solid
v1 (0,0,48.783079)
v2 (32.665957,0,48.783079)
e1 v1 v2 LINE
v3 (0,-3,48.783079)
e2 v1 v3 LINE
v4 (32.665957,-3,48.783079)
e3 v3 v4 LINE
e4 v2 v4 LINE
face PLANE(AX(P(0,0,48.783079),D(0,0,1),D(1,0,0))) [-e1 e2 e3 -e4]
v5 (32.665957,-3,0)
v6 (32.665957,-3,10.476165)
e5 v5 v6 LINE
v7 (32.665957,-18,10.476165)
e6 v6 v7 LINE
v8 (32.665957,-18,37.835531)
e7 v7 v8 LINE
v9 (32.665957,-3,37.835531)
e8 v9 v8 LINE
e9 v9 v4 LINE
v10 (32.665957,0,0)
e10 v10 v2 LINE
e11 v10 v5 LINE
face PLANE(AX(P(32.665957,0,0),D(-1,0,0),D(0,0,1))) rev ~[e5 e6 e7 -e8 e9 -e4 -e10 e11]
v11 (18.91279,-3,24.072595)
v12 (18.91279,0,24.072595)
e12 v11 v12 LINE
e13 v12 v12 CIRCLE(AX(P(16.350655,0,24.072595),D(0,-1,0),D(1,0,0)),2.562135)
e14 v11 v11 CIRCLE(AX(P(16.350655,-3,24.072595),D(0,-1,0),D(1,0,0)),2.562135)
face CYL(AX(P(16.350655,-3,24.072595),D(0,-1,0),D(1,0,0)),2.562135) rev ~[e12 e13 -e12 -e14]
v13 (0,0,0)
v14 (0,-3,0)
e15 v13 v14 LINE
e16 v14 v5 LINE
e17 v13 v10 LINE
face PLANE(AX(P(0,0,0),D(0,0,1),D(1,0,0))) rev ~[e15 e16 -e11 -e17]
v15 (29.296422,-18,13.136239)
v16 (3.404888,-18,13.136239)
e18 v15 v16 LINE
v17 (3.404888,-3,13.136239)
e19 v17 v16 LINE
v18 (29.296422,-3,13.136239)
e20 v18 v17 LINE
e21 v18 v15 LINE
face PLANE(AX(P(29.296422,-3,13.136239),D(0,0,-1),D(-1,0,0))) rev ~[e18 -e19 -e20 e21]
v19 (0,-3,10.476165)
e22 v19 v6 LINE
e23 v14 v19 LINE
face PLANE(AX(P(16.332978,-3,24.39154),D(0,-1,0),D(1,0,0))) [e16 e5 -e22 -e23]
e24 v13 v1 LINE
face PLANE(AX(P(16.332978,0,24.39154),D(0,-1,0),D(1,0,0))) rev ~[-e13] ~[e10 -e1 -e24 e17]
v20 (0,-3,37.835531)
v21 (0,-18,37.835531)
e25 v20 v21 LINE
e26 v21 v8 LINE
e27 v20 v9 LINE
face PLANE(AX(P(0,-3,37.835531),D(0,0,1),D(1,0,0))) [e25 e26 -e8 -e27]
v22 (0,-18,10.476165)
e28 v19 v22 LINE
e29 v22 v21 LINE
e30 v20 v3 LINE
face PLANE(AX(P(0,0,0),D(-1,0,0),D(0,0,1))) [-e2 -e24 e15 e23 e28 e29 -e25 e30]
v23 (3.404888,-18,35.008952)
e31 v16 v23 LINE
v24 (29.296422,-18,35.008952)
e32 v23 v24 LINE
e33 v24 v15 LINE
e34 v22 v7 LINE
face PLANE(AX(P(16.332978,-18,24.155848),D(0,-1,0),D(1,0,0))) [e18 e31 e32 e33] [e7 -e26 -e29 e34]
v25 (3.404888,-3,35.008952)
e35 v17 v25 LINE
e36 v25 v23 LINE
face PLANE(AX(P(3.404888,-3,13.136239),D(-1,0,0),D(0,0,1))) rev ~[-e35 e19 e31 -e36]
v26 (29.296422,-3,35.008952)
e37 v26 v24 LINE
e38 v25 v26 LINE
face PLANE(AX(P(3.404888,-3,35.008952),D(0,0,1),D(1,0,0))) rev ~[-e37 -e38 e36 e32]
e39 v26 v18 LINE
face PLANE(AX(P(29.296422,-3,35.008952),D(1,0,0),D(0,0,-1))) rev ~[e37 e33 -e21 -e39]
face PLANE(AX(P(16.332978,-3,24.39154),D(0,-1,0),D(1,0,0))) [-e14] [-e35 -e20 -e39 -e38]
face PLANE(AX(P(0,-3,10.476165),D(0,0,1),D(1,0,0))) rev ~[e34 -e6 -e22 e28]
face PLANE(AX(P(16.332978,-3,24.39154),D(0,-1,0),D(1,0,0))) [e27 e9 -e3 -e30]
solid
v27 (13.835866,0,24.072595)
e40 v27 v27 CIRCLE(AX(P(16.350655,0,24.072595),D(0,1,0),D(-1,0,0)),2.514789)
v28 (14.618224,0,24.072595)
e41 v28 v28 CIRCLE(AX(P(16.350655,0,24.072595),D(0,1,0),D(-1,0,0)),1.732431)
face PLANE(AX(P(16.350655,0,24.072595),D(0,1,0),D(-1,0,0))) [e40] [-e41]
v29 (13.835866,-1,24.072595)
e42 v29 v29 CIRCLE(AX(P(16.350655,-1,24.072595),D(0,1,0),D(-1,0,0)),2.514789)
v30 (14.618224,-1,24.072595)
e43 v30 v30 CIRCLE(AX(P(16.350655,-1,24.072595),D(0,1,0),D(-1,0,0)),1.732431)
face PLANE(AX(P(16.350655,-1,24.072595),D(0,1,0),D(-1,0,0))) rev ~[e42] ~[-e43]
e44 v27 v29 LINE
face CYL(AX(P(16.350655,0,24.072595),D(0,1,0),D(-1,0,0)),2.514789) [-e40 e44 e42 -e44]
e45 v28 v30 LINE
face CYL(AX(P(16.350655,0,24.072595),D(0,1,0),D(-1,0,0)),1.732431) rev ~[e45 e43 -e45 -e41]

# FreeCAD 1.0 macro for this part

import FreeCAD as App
import Part
import Sketcher
from FreeCAD import Vector
Q = App.Units.Quantity


def add_polygon(sketch, points):
    """Adds a closed chain of lines whose ends are joined by coincident constraints."""
    first, n = sketch.GeometryCount, len(points)
    for a, b in zip(points, points[1:] + points[:1]):
        sketch.addGeometry(Part.LineSegment(App.Vector(*a, 0), App.Vector(*b, 0)), False)
    for i in range(n):
        sketch.addConstraint(Sketcher.Constraint("Coincident", first + i, 2, first + (i + 1) % n, 1))

doc = App.newDocument("Part")
body = doc.addObject("PartDesign::Body", "Body")

# Sketch on XZ plane
sketch1 = doc.addObject("Sketcher::SketchObject", "Sketch")
body.addObject(sketch1)
sketch1.AttachmentSupport = (doc.XZ_Plane, [""])
sketch1.MapMode = "FlatFace"
add_polygon(sketch1, [(0, 48.783079), (0, 0), (32.665957, 0), (32.665957, 48.783079)])  # lines 0-3
sketch1.addConstraint(Sketcher.Constraint("Vertical", 0))
sketch1.addConstraint(Sketcher.Constraint("Horizontal", 1))
sketch1.addConstraint(Sketcher.Constraint("Vertical", 2))
sketch1.addConstraint(Sketcher.Constraint("Horizontal", 3))
sketch1.addConstraint(Sketcher.Constraint("Coincident", 0, 2, -1, 1))
sketch1.addConstraint(Sketcher.Constraint("DistanceY", 0, 2, 0, 1, Q("48.783079 mm")))
sketch1.addConstraint(Sketcher.Constraint("DistanceX", 1, 1, 1, 2, Q("32.665957 mm")))
pad1 = doc.addObject("PartDesign::Pad", "Pad")
body.addObject(pad1)
pad1.Profile = sketch1
pad1.Length = 3

# Sketch on XZ plane
sketch2 = doc.addObject("Sketcher::SketchObject", "Sketch001")
body.addObject(sketch2)
sketch2.AttachmentSupport = (doc.XZ_Plane, [""])
sketch2.MapMode = "FlatFace"
sketch2.AttachmentOffset = App.Placement(Vector(0, 0, 3), App.Rotation())
add_polygon(sketch2, [(0, 37.835531), (0, 10.476165), (32.665957, 10.476165), (32.665957, 37.835531)])  # lines 0-3
add_polygon(sketch2, [(3.404888, 13.136239), (3.404888, 35.008952), (29.296422, 35.008952), (29.296422, 13.136239)])  # lines 4-7
sketch2.addConstraint(Sketcher.Constraint("Vertical", 0))
sketch2.addConstraint(Sketcher.Constraint("Horizontal", 1))
sketch2.addConstraint(Sketcher.Constraint("Vertical", 2))
sketch2.addConstraint(Sketcher.Constraint("Horizontal", 3))
sketch2.addConstraint(Sketcher.Constraint("Vertical", 4))
sketch2.addConstraint(Sketcher.Constraint("Horizontal", 5))
sketch2.addConstraint(Sketcher.Constraint("Vertical", 6))
sketch2.addConstraint(Sketcher.Constraint("Horizontal", 7))
sketch2.addConstraint(Sketcher.Constraint("PointOnObject", 0, 2, -2))
sketch2.addConstraint(Sketcher.Constraint("DistanceX", 1, 1, 1, 2, Q("32.665957 mm")))
sketch2.addConstraint(Sketcher.Constraint("DistanceX", 5, 1, 5, 2, Q("25.891534 mm")))
sketch2.addConstraint(Sketcher.Constraint("DistanceY", 0, 2, 0, 1, Q("27.359366 mm")))
sketch2.addConstraint(Sketcher.Constraint("DistanceY", 4, 1, 4, 2, Q("21.872713 mm")))
sketch2.addConstraint(Sketcher.Constraint("DistanceY", -1, 1, 2, 2, Q("37.835531 mm")))
sketch2.addConstraint(Sketcher.Constraint("DistanceX", -1, 1, 4, 2, Q("3.404888 mm")))
sketch2.addConstraint(Sketcher.Constraint("DistanceY", -1, 1, 6, 2, Q("13.136239 mm")))
pad2 = doc.addObject("PartDesign::Pad", "Pad001")
body.addObject(pad2)
pad2.Profile = sketch2
pad2.Length = 15

# Sketch on XZ plane
sketch3 = doc.addObject("Sketcher::SketchObject", "Sketch002")
body.addObject(sketch3)
sketch3.AttachmentSupport = (doc.XZ_Plane, [""])
sketch3.MapMode = "FlatFace"
sketch3.AttachmentOffset = App.Placement(Vector(0, 0, 3), App.Rotation())
sketch3.addGeometry(Part.Circle(Vector(16.350655, 24.072595, 0), Vector(0, 0, 1), 2.562135), False)
sketch3.addConstraint(Sketcher.Constraint("Diameter", 0, Q("5.12427 mm")))
sketch3.addConstraint(Sketcher.Constraint("DistanceX", -1, 1, 0, 3, Q("16.350655 mm")))
sketch3.addConstraint(Sketcher.Constraint("DistanceY", -1, 1, 0, 3, Q("24.072595 mm")))
pocket1 = doc.addObject("PartDesign::Pocket", "Pocket")
body.addObject(pocket1)
pocket1.Profile = sketch3
pocket1.Length = 25
body2 = doc.addObject("PartDesign::Body", "Body001")

# Sketch on XZ plane
sketch4 = doc.addObject("Sketcher::SketchObject", "Sketch003")
body2.addObject(sketch4)
sketch4.AttachmentSupport = (doc.getObject("XZ_Plane001"), [""])
sketch4.MapMode = "FlatFace"
sketch4.addGeometry(Part.Circle(Vector(16.350655, 24.072595, 0), Vector(0, 0, 1), 2.514789), False)
sketch4.addGeometry(Part.Circle(Vector(16.350655, 24.072595, 0), Vector(0, 0, 1), 1.732431), False)
sketch4.addConstraint(Sketcher.Constraint("Coincident", 1, 3, 0, 3))
sketch4.addConstraint(Sketcher.Constraint("Diameter", 0, Q("5.029578 mm")))
sketch4.addConstraint(Sketcher.Constraint("Diameter", 1, Q("3.464862 mm")))
sketch4.addConstraint(Sketcher.Constraint("DistanceX", -1, 1, 0, 3, Q("16.350655 mm")))
sketch4.addConstraint(Sketcher.Constraint("DistanceY", -1, 1, 0, 3, Q("24.072595 mm")))
pad3 = doc.addObject("PartDesign::Pad", "Pad002")
body2.addObject(pad3)
pad3.Profile = sketch4
pad3.Length = 1

doc.recompute()
